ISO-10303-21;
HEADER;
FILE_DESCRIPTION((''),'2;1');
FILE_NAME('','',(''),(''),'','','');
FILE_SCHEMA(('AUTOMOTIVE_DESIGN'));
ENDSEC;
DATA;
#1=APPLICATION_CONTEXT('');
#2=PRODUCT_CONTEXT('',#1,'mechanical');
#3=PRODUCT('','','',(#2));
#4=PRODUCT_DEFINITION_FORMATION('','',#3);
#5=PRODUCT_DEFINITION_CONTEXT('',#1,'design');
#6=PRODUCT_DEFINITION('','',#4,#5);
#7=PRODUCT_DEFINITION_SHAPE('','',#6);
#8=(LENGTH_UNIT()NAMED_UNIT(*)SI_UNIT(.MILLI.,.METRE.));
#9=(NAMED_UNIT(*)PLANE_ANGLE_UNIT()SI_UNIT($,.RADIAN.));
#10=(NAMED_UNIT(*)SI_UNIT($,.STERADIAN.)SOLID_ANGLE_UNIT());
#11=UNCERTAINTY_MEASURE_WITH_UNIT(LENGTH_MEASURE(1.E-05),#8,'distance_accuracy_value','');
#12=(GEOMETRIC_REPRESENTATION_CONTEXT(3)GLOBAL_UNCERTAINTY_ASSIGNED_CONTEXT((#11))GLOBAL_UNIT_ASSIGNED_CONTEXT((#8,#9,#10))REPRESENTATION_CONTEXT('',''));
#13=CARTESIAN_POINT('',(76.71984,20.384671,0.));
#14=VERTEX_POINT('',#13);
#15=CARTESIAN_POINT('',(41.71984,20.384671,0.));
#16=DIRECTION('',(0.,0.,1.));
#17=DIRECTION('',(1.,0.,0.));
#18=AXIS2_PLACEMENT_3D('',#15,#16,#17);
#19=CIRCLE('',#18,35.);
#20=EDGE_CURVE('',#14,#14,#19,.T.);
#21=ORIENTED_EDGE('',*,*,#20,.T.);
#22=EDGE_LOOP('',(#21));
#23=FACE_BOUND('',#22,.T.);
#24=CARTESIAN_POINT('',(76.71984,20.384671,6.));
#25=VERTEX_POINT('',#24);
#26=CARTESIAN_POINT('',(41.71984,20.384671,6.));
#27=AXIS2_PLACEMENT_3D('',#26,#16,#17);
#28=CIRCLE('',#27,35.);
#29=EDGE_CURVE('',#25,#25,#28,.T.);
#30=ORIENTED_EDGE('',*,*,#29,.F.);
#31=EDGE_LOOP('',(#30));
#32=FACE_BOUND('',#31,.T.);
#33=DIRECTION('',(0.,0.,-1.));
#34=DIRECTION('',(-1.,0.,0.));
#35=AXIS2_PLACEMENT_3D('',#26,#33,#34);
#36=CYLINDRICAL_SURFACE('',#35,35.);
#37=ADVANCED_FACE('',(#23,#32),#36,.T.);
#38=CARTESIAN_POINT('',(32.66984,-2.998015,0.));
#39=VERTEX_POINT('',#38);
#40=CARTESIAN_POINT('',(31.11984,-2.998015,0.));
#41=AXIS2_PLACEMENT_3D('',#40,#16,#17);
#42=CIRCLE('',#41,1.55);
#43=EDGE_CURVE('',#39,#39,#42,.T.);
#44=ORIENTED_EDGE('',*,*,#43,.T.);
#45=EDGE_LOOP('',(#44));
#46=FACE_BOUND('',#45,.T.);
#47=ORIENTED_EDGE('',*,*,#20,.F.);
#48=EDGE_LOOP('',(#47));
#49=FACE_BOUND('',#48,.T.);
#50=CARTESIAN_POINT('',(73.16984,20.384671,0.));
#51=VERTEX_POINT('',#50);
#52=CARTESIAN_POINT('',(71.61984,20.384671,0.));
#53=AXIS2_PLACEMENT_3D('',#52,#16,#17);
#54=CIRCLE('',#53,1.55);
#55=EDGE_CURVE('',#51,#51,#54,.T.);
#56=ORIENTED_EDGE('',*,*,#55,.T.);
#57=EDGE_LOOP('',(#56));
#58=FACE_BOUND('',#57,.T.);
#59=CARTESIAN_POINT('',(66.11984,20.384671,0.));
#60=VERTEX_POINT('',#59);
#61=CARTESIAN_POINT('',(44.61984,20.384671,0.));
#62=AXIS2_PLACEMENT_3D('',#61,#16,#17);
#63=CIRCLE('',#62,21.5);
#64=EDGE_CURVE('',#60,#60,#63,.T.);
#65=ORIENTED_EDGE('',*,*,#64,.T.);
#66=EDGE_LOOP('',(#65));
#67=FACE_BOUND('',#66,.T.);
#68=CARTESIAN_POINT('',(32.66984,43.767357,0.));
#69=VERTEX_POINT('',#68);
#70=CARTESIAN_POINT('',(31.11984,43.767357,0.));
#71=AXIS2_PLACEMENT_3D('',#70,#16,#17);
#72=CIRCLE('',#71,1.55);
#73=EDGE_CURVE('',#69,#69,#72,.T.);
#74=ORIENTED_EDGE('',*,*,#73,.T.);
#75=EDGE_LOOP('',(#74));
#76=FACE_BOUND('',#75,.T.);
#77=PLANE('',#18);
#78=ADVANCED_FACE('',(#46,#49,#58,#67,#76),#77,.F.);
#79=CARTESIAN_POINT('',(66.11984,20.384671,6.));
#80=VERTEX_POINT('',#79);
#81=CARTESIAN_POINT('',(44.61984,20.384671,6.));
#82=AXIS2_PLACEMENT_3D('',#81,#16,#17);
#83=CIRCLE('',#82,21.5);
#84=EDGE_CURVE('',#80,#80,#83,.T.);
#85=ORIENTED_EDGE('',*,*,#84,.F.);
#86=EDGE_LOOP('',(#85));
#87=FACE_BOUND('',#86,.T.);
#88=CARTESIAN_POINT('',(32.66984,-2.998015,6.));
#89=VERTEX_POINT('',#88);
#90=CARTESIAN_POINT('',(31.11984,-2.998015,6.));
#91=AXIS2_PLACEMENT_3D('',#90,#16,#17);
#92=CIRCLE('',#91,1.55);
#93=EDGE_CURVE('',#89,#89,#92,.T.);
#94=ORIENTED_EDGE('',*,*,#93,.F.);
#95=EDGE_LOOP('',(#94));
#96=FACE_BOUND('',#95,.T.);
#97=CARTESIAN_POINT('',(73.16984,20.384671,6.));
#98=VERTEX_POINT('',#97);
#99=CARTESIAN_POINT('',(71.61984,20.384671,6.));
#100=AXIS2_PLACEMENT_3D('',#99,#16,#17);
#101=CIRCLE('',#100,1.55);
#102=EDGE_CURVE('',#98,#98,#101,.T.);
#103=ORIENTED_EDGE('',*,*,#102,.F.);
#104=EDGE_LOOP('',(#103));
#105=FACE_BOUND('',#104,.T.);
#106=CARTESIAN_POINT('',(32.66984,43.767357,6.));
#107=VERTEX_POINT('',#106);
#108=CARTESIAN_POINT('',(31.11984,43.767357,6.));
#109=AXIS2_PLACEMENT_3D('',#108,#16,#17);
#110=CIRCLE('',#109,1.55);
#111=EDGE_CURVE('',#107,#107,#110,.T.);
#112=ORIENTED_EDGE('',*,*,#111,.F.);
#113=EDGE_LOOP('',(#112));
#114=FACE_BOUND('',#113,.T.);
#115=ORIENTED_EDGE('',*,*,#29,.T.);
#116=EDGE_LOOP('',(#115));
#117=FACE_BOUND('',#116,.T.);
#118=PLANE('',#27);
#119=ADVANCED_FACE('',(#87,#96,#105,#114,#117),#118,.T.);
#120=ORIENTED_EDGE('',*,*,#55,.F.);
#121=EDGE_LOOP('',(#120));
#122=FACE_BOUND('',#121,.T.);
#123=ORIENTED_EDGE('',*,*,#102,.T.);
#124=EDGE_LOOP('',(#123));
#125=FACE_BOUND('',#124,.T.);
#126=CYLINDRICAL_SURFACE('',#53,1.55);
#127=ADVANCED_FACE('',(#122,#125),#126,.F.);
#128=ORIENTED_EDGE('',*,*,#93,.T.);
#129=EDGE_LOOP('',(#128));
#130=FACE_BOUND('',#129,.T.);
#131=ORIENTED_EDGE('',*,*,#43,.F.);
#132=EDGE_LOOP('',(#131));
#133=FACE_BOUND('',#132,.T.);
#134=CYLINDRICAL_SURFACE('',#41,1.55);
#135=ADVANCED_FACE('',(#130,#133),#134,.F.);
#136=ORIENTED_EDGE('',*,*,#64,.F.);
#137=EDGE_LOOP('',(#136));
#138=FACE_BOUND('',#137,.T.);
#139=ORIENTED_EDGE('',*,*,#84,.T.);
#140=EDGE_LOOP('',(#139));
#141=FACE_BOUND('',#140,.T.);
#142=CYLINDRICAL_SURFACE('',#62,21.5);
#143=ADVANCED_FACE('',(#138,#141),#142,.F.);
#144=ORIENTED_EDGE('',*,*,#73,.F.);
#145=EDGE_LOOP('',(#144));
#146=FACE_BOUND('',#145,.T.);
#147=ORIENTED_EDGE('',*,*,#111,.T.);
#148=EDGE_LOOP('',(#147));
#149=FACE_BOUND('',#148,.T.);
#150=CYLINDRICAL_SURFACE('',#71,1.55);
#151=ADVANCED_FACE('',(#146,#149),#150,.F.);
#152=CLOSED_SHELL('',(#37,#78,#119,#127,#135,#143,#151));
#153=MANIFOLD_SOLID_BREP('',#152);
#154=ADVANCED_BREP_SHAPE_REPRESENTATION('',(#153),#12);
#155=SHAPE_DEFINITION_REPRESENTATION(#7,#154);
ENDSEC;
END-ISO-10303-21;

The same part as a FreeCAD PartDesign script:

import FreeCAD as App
import Part
import Sketcher

V = App.Vector
Q = App.Units.Quantity

doc = App.newDocument("Part")
params = doc.addObject("Spreadsheet::Sheet", "Params")
for row, (alias, value) in enumerate([
    ("sketch1_diameter", "70 mm"),
    ("pad1_length", "6 mm"),
    ("sketch2_diameter", "43 mm"),
    ("pocket1_length", "6 mm"),
    ("sketch3_diameter", "3.1 mm"),
    ("pocket2_length", "6 mm"),
], start=1):
    params.set(f"A{row}", alias)
    params.set(f"B{row}", "=" + value)
    params.setAlias(f"B{row}", alias)

body = doc.addObject("PartDesign::Body", "Body")

# Sketch on XY plane
sketch1 = doc.addObject("Sketcher::SketchObject", "Sketch")
body.addObject(sketch1)
sketch1.AttachmentSupport = (doc.XY_Plane, [""])
sketch1.MapMode = "FlatFace"
sketch1.addGeometry(Part.Circle(V(42, 20, 0), V(0, 0, 1), 35), False)
sketch1.addConstraint(Sketcher.Constraint("Diameter", 0, Q("70 mm")))
sketch1.addConstraint(Sketcher.Constraint("DistanceX", -1, 1, 0, 3, Q("41.71984 mm")))
sketch1.addConstraint(Sketcher.Constraint("DistanceY", -1, 1, 0, 3, Q("20.384671 mm")))
sketch1.setExpression("Constraints[0]", "Params.sketch1_diameter")
pad1 = doc.addObject("PartDesign::Pad", "Pad")
body.addObject(pad1)
pad1.Profile = sketch1
pad1.setExpression("Length", "Params.pad1_length")

# Sketch on XY plane
sketch2 = doc.addObject("Sketcher::SketchObject", "Sketch001")
body.addObject(sketch2)
sketch2.AttachmentSupport = (doc.XY_Plane, [""])
sketch2.MapMode = "FlatFace"
sketch2.AttachmentOffset = App.Placement(V(0, 0, 6), App.Rotation())
sketch2.addGeometry(Part.Circle(V(45, 20, 0), V(0, 0, 1), 22), False)
sketch2.addConstraint(Sketcher.Constraint("Diameter", 0, Q("43 mm")))
sketch2.addConstraint(Sketcher.Constraint("DistanceX", -1, 1, 0, 3, Q("44.61984 mm")))
sketch2.addConstraint(Sketcher.Constraint("DistanceY", -1, 1, 0, 3, Q("20.384671 mm")))
sketch2.setExpression("Constraints[0]", "Params.sketch2_diameter")
pocket1 = doc.addObject("PartDesign::Pocket", "Pocket")
body.addObject(pocket1)
pocket1.Profile = sketch2
pocket1.setExpression("Length", "Params.pocket1_length")

# Sketch on XY plane
sketch3 = doc.addObject("Sketcher::SketchObject", "Sketch002")
body.addObject(sketch3)
sketch3.AttachmentSupport = (doc.XY_Plane, [""])
sketch3.MapMode = "FlatFace"
sketch3.AttachmentOffset = App.Placement(V(0, 0, 6), App.Rotation())
sketch3.addGeometry(Part.Circle(V(31.1, -3, 0), V(0, 0, 1), 1.6), False)
sketch3.addGeometry(Part.Circle(V(71.6, 20.4, 0), V(0, 0, 1), 1.6), False)
sketch3.addGeometry(Part.Circle(V(31.1, 43.8, 0), V(0, 0, 1), 1.6), False)
sketch3.addConstraint(Sketcher.Constraint("Equal", 0, 1))
sketch3.addConstraint(Sketcher.Constraint("Equal", 1, 2))
sketch3.addConstraint(Sketcher.Constraint("Vertical", 0, 3, 2, 3))
sketch3.addConstraint(Sketcher.Constraint("Diameter", 0, Q("3.1 mm")))
sketch3.addConstraint(Sketcher.Constraint("DistanceX", 0, 3, 1, 3, Q("40.5 mm")))
sketch3.addConstraint(Sketcher.Constraint("DistanceX", -1, 1, 0, 3, Q("31.11984 mm")))
sketch3.addConstraint(Sketcher.Constraint("DistanceY", -1, 1, 1, 3, Q("20.384671 mm")))
sketch3.addConstraint(Sketcher.Constraint("DistanceY", 0, 3, 2, 3, Q("46.765372 mm")))
sketch3.addConstraint(Sketcher.Constraint("DistanceY", 0, 3, -1, 1, Q("2.998015 mm")))
sketch3.setExpression("Constraints[3]", "Params.sketch3_diameter")
pocket2 = doc.addObject("PartDesign::Pocket", "Pocket001")
body.addObject(pocket2)
pocket2.Profile = sketch3
pocket2.setExpression("Length", "Params.pocket2_length")

doc.recompute()
